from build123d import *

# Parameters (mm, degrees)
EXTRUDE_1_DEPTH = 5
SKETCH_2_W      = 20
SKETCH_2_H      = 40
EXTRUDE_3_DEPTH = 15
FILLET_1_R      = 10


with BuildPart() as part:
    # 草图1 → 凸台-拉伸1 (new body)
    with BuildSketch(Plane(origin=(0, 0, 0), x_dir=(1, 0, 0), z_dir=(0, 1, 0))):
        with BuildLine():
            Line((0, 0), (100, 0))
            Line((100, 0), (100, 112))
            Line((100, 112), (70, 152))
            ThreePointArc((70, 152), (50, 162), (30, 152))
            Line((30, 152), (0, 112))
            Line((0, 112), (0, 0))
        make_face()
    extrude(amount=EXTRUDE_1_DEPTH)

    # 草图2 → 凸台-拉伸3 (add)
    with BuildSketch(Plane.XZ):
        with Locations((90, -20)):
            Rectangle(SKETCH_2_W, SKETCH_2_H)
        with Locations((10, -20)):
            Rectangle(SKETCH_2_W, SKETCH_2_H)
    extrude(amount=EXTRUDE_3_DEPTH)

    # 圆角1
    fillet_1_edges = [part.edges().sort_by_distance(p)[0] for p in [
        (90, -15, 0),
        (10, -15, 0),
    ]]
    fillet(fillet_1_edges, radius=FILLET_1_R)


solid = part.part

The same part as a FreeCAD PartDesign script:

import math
import FreeCAD as App
import Part
import Sketcher


def edges_at(feature, points):
    """Names of the edges that pass closest to the given points."""
    edges = feature.Shape.Edges
    near = lambda p: min(range(len(edges)), key=lambda i: edges[i].distToShape(Part.Vertex(*p))[0])
    return sorted({f"Edge{near(p) + 1}" for p in points})

doc = App.newDocument("Part")
body = doc.addObject("PartDesign::Body", "Body")

sketch1 = body.newObject("Sketcher::SketchObject", "Sketch")
sketch1.AttachmentSupport = (doc.getObject("XZ_Plane"), [""])
sketch1.MapMode = "FlatFace"
sketch1.addGeometry(Part.LineSegment(App.Vector(0, 0, 0), App.Vector(100, 0, 0)), False)
sketch1.addGeometry(Part.LineSegment(App.Vector(100, 0, 0), App.Vector(100, -112, 0)), False)
sketch1.addGeometry(Part.LineSegment(App.Vector(100, -112, 0), App.Vector(70, -152, 0)), False)
sketch1.addGeometry(Part.ArcOfCircle(Part.Circle(App.Vector(50, -137, 0), App.Vector(0, 0, 1), 25), math.radians(-143.130102), math.radians(-36.869898)), False)
sketch1.addGeometry(Part.LineSegment(App.Vector(30, -152, 0), App.Vector(0, -112, 0)), False)
sketch1.addGeometry(Part.LineSegment(App.Vector(0, -112, 0), App.Vector(0, 0, 0)), False)
sketch1.addConstraint(Sketcher.Constraint("Coincident", 0, 2, 1, 1))
sketch1.addConstraint(Sketcher.Constraint("Coincident", 1, 2, 2, 1))
sketch1.addConstraint(Sketcher.Constraint("Tangent", 2, 2, 3, 2))
sketch1.addConstraint(Sketcher.Constraint("Tangent", 3, 1, 4, 1))
sketch1.addConstraint(Sketcher.Constraint("Coincident", 4, 2, 5, 1))
sketch1.addConstraint(Sketcher.Constraint("Coincident", 5, 2, 0, 1))
sketch1.addConstraint(Sketcher.Constraint("Horizontal", 0))
sketch1.addConstraint(Sketcher.Constraint("Vertical", 1))
sketch1.addConstraint(Sketcher.Constraint("Vertical", 5))
sketch1.addConstraint(Sketcher.Constraint("Coincident", 5, 2, -1, 1))
sketch1.addConstraint(Sketcher.Constraint("Horizontal", 2, 2, 3, 1))
sketch1.addConstraint(Sketcher.Constraint("Horizontal", 1, 2, 4, 2))
sketch1.addConstraint(Sketcher.Constraint("Radius", 3, 25.0))
sketch1.addConstraint(Sketcher.Constraint("DistanceX", 0, 1, 0, 2, 100.0))
sketch1.addConstraint(Sketcher.Constraint("DistanceY", 1, 2, 1, 1, 112.0))
sketch1.addConstraint(Sketcher.Constraint("Distance", 2, 50.0))
pad1 = body.newObject("PartDesign::Pad", "Pad")
pad1.Profile = sketch1
pad1.Length = 5
pad1.Reversed = True

sketch2 = body.newObject("Sketcher::SketchObject", "Sketch001")
sketch2.AttachmentSupport = (doc.getObject("XZ_Plane"), [""])
sketch2.MapMode = "FlatFace"
sketch2.addGeometry(Part.LineSegment(App.Vector(80, 0, 0), App.Vector(80, -40, 0)), False)
sketch2.addGeometry(Part.LineSegment(App.Vector(80, -40, 0), App.Vector(100, -40, 0)), False)
sketch2.addGeometry(Part.LineSegment(App.Vector(100, -40, 0), App.Vector(100, 0, 0)), False)
sketch2.addGeometry(Part.LineSegment(App.Vector(100, 0, 0), App.Vector(80, 0, 0)), False)
sketch2.addGeometry(Part.LineSegment(App.Vector(0, 0, 0), App.Vector(0, -40, 0)), False)
sketch2.addGeometry(Part.LineSegment(App.Vector(0, -40, 0), App.Vector(20, -40, 0)), False)
sketch2.addGeometry(Part.LineSegment(App.Vector(20, -40, 0), App.Vector(20, 0, 0)), False)
sketch2.addGeometry(Part.LineSegment(App.Vector(20, 0, 0), App.Vector(0, 0, 0)), False)
sketch2.addConstraint(Sketcher.Constraint("Coincident", 0, 2, 1, 1))
sketch2.addConstraint(Sketcher.Constraint("Coincident", 1, 2, 2, 1))
sketch2.addConstraint(Sketcher.Constraint("Coincident", 2, 2, 3, 1))
sketch2.addConstraint(Sketcher.Constraint("Coincident", 3, 2, 0, 1))
sketch2.addConstraint(Sketcher.Constraint("Coincident", 4, 2, 5, 1))
sketch2.addConstraint(Sketcher.Constraint("Coincident", 5, 2, 6, 1))
sketch2.addConstraint(Sketcher.Constraint("Coincident", 6, 2, 7, 1))
sketch2.addConstraint(Sketcher.Constraint("Coincident", 7, 2, 4, 1))
sketch2.addConstraint(Sketcher.Constraint("Vertical", 0))
sketch2.addConstraint(Sketcher.Constraint("Horizontal", 1))
sketch2.addConstraint(Sketcher.Constraint("Vertical", 2))
sketch2.addConstraint(Sketcher.Constraint("Horizontal", 3))
sketch2.addConstraint(Sketcher.Constraint("Vertical", 4))
sketch2.addConstraint(Sketcher.Constraint("Horizontal", 5))
sketch2.addConstraint(Sketcher.Constraint("Vertical", 6))
sketch2.addConstraint(Sketcher.Constraint("Horizontal", 7))
sketch2.addConstraint(Sketcher.Constraint("Coincident", 7, 2, -1, 1))
sketch2.addConstraint(Sketcher.Constraint("PointOnObject", 2, 2, -1))
sketch2.addConstraint(Sketcher.Constraint("Horizontal", 1, 2, 4, 2))
sketch2.addConstraint(Sketcher.Constraint("Equal", 3, 5))
sketch2.addConstraint(Sketcher.Constraint("DistanceX", 1, 1, 1, 2, 20.0))
sketch2.addConstraint(Sketcher.Constraint("DistanceY", 0, 2, 0, 1, 40.0))
sketch2.addConstraint(Sketcher.Constraint("DistanceX", -1, 1, 0, 2, 80.0))
pad2 = body.newObject("PartDesign::Pad", "Pad001")
pad2.Profile = sketch2
pad2.Length = 15
doc.recompute()

fillet = body.newObject("PartDesign::Fillet", "Fillet")
fillet.Base = (pad2, edges_at(pad2, [(90, -15, 0), (10, -15, 0)]))
fillet.Radius = 10

doc.recompute()
